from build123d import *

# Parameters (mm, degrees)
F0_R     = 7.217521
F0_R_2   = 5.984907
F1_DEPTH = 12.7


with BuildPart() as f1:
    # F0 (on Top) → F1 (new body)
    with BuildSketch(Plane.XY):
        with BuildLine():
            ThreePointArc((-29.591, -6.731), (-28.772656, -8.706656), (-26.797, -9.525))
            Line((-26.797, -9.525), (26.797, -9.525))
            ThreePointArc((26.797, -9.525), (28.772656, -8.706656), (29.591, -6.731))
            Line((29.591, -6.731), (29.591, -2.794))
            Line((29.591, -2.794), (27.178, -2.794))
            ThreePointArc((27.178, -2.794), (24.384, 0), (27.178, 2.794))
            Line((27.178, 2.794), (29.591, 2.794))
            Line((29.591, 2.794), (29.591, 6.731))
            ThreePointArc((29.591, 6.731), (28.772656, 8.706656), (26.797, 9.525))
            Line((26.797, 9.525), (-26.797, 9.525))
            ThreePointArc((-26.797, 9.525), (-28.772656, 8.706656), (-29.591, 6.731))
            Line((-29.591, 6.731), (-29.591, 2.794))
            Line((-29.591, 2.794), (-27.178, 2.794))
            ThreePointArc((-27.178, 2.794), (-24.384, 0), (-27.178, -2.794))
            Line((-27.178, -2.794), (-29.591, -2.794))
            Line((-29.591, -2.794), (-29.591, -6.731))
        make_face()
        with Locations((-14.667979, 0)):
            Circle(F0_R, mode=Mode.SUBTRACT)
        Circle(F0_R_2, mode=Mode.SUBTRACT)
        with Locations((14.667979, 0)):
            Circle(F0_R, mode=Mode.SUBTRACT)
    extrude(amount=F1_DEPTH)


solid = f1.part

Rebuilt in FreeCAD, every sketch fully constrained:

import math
import FreeCAD as App
import Part
import Sketcher
Q = App.Units.Quantity

doc = App.newDocument("Part")
body = doc.addObject("PartDesign::Body", "Body")

# Sketch on XY plane
sketch1 = body.newObject("Sketcher::SketchObject", "Sketch")
sketch1.AttachmentSupport = (doc.getObject("XY_Plane"), [""])
sketch1.MapMode = "FlatFace"
sketch1.addGeometry(Part.ArcOfCircle(Part.Circle(App.Vector(-26.8, -6.7, 0), App.Vector(0, 0, 1), 2.8), math.radians(-180), math.radians(-90)), False)
sketch1.addGeometry(Part.LineSegment(App.Vector(-26.8, -9.5, 0), App.Vector(26.8, -9.5, 0)), False)
sketch1.addGeometry(Part.ArcOfCircle(Part.Circle(App.Vector(26.8, -6.7, 0), App.Vector(0, 0, 1), 2.8), math.radians(-90), math.radians(0)), False)
sketch1.addGeometry(Part.LineSegment(App.Vector(29.6, -6.7, 0), App.Vector(29.6, -2.8, 0)), False)
sketch1.addGeometry(Part.LineSegment(App.Vector(29.6, -2.8, 0), App.Vector(27.2, -2.8, 0)), False)
sketch1.addGeometry(Part.ArcOfCircle(Part.Circle(App.Vector(27.2, 0, 0), App.Vector(0, 0, 1), 2.8), math.radians(90), math.radians(270)), False)
sketch1.addGeometry(Part.LineSegment(App.Vector(27.2, 2.8, 0), App.Vector(29.6, 2.8, 0)), False)
sketch1.addGeometry(Part.LineSegment(App.Vector(29.6, 2.8, 0), App.Vector(29.6, 6.7, 0)), False)
sketch1.addGeometry(Part.ArcOfCircle(Part.Circle(App.Vector(26.8, 6.7, 0), App.Vector(0, 0, 1), 2.8), math.radians(0), math.radians(90)), False)
sketch1.addGeometry(Part.LineSegment(App.Vector(26.8, 9.5, 0), App.Vector(-26.8, 9.5, 0)), False)
sketch1.addGeometry(Part.ArcOfCircle(Part.Circle(App.Vector(-26.8, 6.7, 0), App.Vector(0, 0, 1), 2.8), math.radians(90), math.radians(180)), False)
sketch1.addGeometry(Part.LineSegment(App.Vector(-29.6, 6.7, 0), App.Vector(-29.6, 2.8, 0)), False)
sketch1.addGeometry(Part.LineSegment(App.Vector(-29.6, 2.8, 0), App.Vector(-27.2, 2.8, 0)), False)
sketch1.addGeometry(Part.ArcOfCircle(Part.Circle(App.Vector(-27.2, 0, 0), App.Vector(0, 0, 1), 2.8), math.radians(-90), math.radians(90)), False)
sketch1.addGeometry(Part.LineSegment(App.Vector(-27.2, -2.8, 0), App.Vector(-29.6, -2.8, 0)), False)
sketch1.addGeometry(Part.LineSegment(App.Vector(-29.6, -2.8, 0), App.Vector(-29.6, -6.7, 0)), False)
sketch1.addGeometry(Part.Circle(App.Vector(-14.7, 0, 0), App.Vector(0, 0, 1), 7.2), False)
sketch1.addGeometry(Part.Circle(App.Vector(0, 0, 0), App.Vector(0, 0, 1), 6), False)
sketch1.addGeometry(Part.Circle(App.Vector(14.7, 0, 0), App.Vector(0, 0, 1), 7.2), False)
sketch1.addConstraint(Sketcher.Constraint("Tangent", 0, 2, 1, 1))
sketch1.addConstraint(Sketcher.Constraint("Tangent", 1, 2, 2, 1))
sketch1.addConstraint(Sketcher.Constraint("Tangent", 2, 2, 3, 1))
sketch1.addConstraint(Sketcher.Constraint("Coincident", 3, 2, 4, 1))
sketch1.addConstraint(Sketcher.Constraint("Tangent", 4, 2, 5, 2))
sketch1.addConstraint(Sketcher.Constraint("Tangent", 5, 1, 6, 1))
sketch1.addConstraint(Sketcher.Constraint("Coincident", 6, 2, 7, 1))
sketch1.addConstraint(Sketcher.Constraint("Tangent", 7, 2, 8, 1))
sketch1.addConstraint(Sketcher.Constraint("Tangent", 8, 2, 9, 1))
sketch1.addConstraint(Sketcher.Constraint("Tangent", 9, 2, 10, 1))
sketch1.addConstraint(Sketcher.Constraint("Tangent", 10, 2, 11, 1))
sketch1.addConstraint(Sketcher.Constraint("Coincident", 11, 2, 12, 1))
sketch1.addConstraint(Sketcher.Constraint("Tangent", 12, 2, 13, 2))
sketch1.addConstraint(Sketcher.Constraint("Tangent", 13, 1, 14, 1))
sketch1.addConstraint(Sketcher.Constraint("Coincident", 14, 2, 15, 1))
sketch1.addConstraint(Sketcher.Constraint("Tangent", 15, 2, 0, 1))
sketch1.addConstraint(Sketcher.Constraint("Horizontal", 1))
sketch1.addConstraint(Sketcher.Constraint("Vertical", 3))
sketch1.addConstraint(Sketcher.Constraint("Horizontal", 4))
sketch1.addConstraint(Sketcher.Constraint("Horizontal", 6))
sketch1.addConstraint(Sketcher.Constraint("Vertical", 7))
sketch1.addConstraint(Sketcher.Constraint("Horizontal", 9))
sketch1.addConstraint(Sketcher.Constraint("Vertical", 11))
sketch1.addConstraint(Sketcher.Constraint("Horizontal", 12))
sketch1.addConstraint(Sketcher.Constraint("Horizontal", 14))
sketch1.addConstraint(Sketcher.Constraint("Vertical", 15))
sketch1.addConstraint(Sketcher.Constraint("Coincident", 17, 3, -1, 1))
sketch1.addConstraint(Sketcher.Constraint("Equal", 0, 2))
sketch1.addConstraint(Sketcher.Constraint("Equal", 2, 5))
sketch1.addConstraint(Sketcher.Constraint("Equal", 5, 8))
sketch1.addConstraint(Sketcher.Constraint("Equal", 8, 10))
sketch1.addConstraint(Sketcher.Constraint("Equal", 10, 13))
sketch1.addConstraint(Sketcher.Constraint("Equal", 16, 18))
sketch1.addConstraint(Sketcher.Constraint("Symmetric", 0, 3, 8, 3, -1, 1))
sketch1.addConstraint(Sketcher.Constraint("Symmetric", 5, 3, 13, 3, -1, 1))
sketch1.addConstraint(Sketcher.Constraint("Symmetric", 16, 3, 18, 3, -1, 1))
sketch1.addConstraint(Sketcher.Constraint("Symmetric", 6, 2, 11, 2, -2))
sketch1.addConstraint(Sketcher.Constraint("PointOnObject", 16, 3, -1))
sketch1.addConstraint(Sketcher.Constraint("Vertical", 2, 3, 8, 3))
sketch1.addConstraint(Sketcher.Constraint("Radius", 0, Q("0.11 in")))
sketch1.addConstraint(Sketcher.Constraint("DistanceX", 1, 1, 1, 2, Q("2.11 in")))
sketch1.addConstraint(Sketcher.Constraint("DistanceX", 4, 2, 4, 1, Q("0.095 in")))
sketch1.addConstraint(Sketcher.Constraint("DistanceY", 3, 1, 3, 2, Q("0.155 in")))
sketch1.addConstraint(Sketcher.Constraint("Diameter", 16, Q("14.435042 mm")))
sketch1.addConstraint(Sketcher.Constraint("Diameter", 17, Q("11.969814 mm")))
sketch1.addConstraint(Sketcher.Constraint("DistanceX", 16, 3, -1, 1, Q("14.667979 mm")))
pad1 = body.newObject("PartDesign::Pad", "Pad")
pad1.Profile = sketch1
pad1.Length = Q("0.5 in")

doc.recompute()
